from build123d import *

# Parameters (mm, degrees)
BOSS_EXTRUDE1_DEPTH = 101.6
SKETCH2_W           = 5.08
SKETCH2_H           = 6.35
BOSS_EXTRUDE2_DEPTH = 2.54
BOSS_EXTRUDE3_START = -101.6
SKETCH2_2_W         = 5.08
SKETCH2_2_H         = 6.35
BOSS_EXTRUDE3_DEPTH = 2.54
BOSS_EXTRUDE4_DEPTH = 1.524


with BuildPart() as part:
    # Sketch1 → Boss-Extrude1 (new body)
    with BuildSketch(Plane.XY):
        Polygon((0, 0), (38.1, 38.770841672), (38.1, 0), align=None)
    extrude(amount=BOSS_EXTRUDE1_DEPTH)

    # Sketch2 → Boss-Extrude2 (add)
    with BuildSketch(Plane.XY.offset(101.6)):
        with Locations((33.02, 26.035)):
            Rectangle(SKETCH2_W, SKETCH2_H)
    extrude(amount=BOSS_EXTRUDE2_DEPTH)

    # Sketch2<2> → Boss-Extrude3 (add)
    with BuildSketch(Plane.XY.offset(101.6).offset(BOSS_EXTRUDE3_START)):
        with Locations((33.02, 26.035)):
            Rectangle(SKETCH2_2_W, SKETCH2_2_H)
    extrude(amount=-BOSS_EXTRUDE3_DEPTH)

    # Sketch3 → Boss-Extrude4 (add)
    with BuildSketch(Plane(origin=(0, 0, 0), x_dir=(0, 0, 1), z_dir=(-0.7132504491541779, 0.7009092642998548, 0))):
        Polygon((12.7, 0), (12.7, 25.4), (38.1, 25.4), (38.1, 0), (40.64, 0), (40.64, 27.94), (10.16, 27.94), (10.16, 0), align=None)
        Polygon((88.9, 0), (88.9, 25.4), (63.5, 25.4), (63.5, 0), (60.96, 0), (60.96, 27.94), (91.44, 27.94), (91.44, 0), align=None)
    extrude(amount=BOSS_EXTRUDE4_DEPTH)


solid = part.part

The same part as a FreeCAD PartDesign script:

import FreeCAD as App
import Part
import Sketcher
Q = App.Units.Quantity


def add_polygon(sketch, points):
    """Adds a closed chain of lines whose ends are joined by coincident constraints."""
    first, n = sketch.GeometryCount, len(points)
    for a, b in zip(points, points[1:] + points[:1]):
        sketch.addGeometry(Part.LineSegment(App.Vector(*a, 0), App.Vector(*b, 0)), False)
    for i in range(n):
        sketch.addConstraint(Sketcher.Constraint("Coincident", first + i, 2, first + (i + 1) % n, 1))

doc = App.newDocument("Part")
body = doc.addObject("PartDesign::Body", "Body")

sketch1 = doc.addObject("Sketcher::SketchObject", "Sketch")
body.addObject(sketch1)
sketch1.AttachmentSupport = (doc.XY_Plane, [""])
sketch1.MapMode = "FlatFace"
add_polygon(sketch1, [(38, 39), (0, 0), (38, 0)])
sketch1.addConstraint(Sketcher.Constraint("Horizontal", 1))
sketch1.addConstraint(Sketcher.Constraint("Vertical", 2))
sketch1.addConstraint(Sketcher.Constraint("Coincident", 0, 2, -1, 1))
sketch1.addConstraint(Sketcher.Constraint("DistanceX", 1, 1, 1, 2, Q("1.5 in")))
sketch1.addConstraint(Sketcher.Constraint("Angle", 0, Q("-134.5 deg")))
pad1 = doc.addObject("PartDesign::Pad", "Pad")
body.addObject(pad1)
pad1.Profile = sketch1
pad1.Length = Q("4 in")

sketch2 = doc.addObject("Sketcher::SketchObject", "Sketch001")
body.addObject(sketch2)
sketch2.AttachmentSupport = (doc.XY_Plane, [""])
sketch2.MapMode = "FlatFace"
sketch2.AttachmentOffset = App.Placement(App.Vector(0, 0, 4 * 25.4), App.Rotation())
add_polygon(sketch2, [(30, 29), (30, 23), (36, 23), (36, 29)])
sketch2.addConstraint(Sketcher.Constraint("Vertical", 0))
sketch2.addConstraint(Sketcher.Constraint("Horizontal", 1))
sketch2.addConstraint(Sketcher.Constraint("Vertical", 2))
sketch2.addConstraint(Sketcher.Constraint("Horizontal", 3))
sketch2.addConstraint(Sketcher.Constraint("DistanceX", 1, 1, 1, 2, Q("0.2 in")))
sketch2.addConstraint(Sketcher.Constraint("DistanceY", 0, 2, 0, 1, Q("0.25 in")))
sketch2.addConstraint(Sketcher.Constraint("DistanceX", -1, 1, 0, 2, Q("1.2 in")))
sketch2.addConstraint(Sketcher.Constraint("DistanceY", -1, 1, 0, 2, Q("0.9 in")))
pad2 = doc.addObject("PartDesign::Pad", "Pad001")
body.addObject(pad2)
pad2.Profile = sketch2
pad2.Length = Q("0.1 in")

sketch3 = doc.addObject("Sketcher::SketchObject", "Sketch002")
body.addObject(sketch3)
sketch3.AttachmentSupport = (doc.XY_Plane, [""])
sketch3.MapMode = "FlatFace"
add_polygon(sketch3, [(30, 29), (30, 23), (36, 23), (36, 29)])
sketch3.addConstraint(Sketcher.Constraint("Vertical", 0))
sketch3.addConstraint(Sketcher.Constraint("Horizontal", 1))
sketch3.addConstraint(Sketcher.Constraint("Vertical", 2))
sketch3.addConstraint(Sketcher.Constraint("Horizontal", 3))
sketch3.addConstraint(Sketcher.Constraint("DistanceX", 1, 1, 1, 2, Q("0.2 in")))
sketch3.addConstraint(Sketcher.Constraint("DistanceY", 0, 2, 0, 1, Q("0.25 in")))
sketch3.addConstraint(Sketcher.Constraint("DistanceX", -1, 1, 0, 2, Q("1.2 in")))
sketch3.addConstraint(Sketcher.Constraint("DistanceY", -1, 1, 0, 2, Q("0.9 in")))
pad3 = doc.addObject("PartDesign::Pad", "Pad002")
body.addObject(pad3)
pad3.Profile = sketch3
pad3.Length = Q("0.1 in")
pad3.Reversed = True

sketch4 = doc.addObject("Sketcher::SketchObject", "Sketch003")
body.addObject(sketch4)
sketch4.Placement = App.Placement(App.Vector(0, 0, 0), App.Rotation(App.Vector(0, 0, 1), App.Vector(0.700909264, 0.713250449, 0), App.Vector(-0.713250449, 0.700909264, 0), "ZXY"))
add_polygon(sketch4, [(12.7, 0), (12.7, 25.4), (38.1, 25.4), (38.1, 0), (40.6, 0), (40.6, 27.9), (10.2, 27.9), (10.2, 0)])
add_polygon(sketch4, [(88.9, 25.4), (88.9, 0), (91.4, 0), (91.4, 27.9), (61, 27.9), (61, 0), (63.5, 0), (63.5, 25.4)])
sketch4.addConstraint(Sketcher.Constraint("Vertical", 0))
sketch4.addConstraint(Sketcher.Constraint("Horizontal", 1))
sketch4.addConstraint(Sketcher.Constraint("Vertical", 2))
sketch4.addConstraint(Sketcher.Constraint("Horizontal", 3))
sketch4.addConstraint(Sketcher.Constraint("Vertical", 4))
sketch4.addConstraint(Sketcher.Constraint("Horizontal", 5))
sketch4.addConstraint(Sketcher.Constraint("Vertical", 6))
sketch4.addConstraint(Sketcher.Constraint("Horizontal", 7))
sketch4.addConstraint(Sketcher.Constraint("Vertical", 8))
sketch4.addConstraint(Sketcher.Constraint("Horizontal", 9))
sketch4.addConstraint(Sketcher.Constraint("Vertical", 10))
sketch4.addConstraint(Sketcher.Constraint("Horizontal", 11))
sketch4.addConstraint(Sketcher.Constraint("Vertical", 12))
sketch4.addConstraint(Sketcher.Constraint("Horizontal", 13))
sketch4.addConstraint(Sketcher.Constraint("Vertical", 14))
sketch4.addConstraint(Sketcher.Constraint("Horizontal", 15))
sketch4.addConstraint(Sketcher.Constraint("PointOnObject", 2, 2, -1))
sketch4.addConstraint(Sketcher.Constraint("PointOnObject", 6, 2, -1))
sketch4.addConstraint(Sketcher.Constraint("PointOnObject", 8, 2, -1))
sketch4.addConstraint(Sketcher.Constraint("PointOnObject", 12, 2, -1))
sketch4.addConstraint(Sketcher.Constraint("Horizontal", 5, 2, 10, 2))
sketch4.addConstraint(Sketcher.Constraint("Horizontal", 1, 2, 14, 2))
sketch4.addConstraint(Sketcher.Constraint("Equal", 3, 7))
sketch4.addConstraint(Sketcher.Constraint("Equal", 7, 9))
sketch4.addConstraint(Sketcher.Constraint("Equal", 5, 11))
sketch4.addConstraint(Sketcher.Constraint("Equal", 9, 13))
sketch4.addConstraint(Sketcher.Constraint("Equal", 15, 0))
sketch4.addConstraint(Sketcher.Constraint("DistanceX", 1, 1, 1, 2, Q("1 in")))
sketch4.addConstraint(Sketcher.Constraint("DistanceX", 3, 1, 3, 2, Q("0.1 in")))
sketch4.addConstraint(Sketcher.Constraint("DistanceY", 4, 1, 4, 2, Q("1.1 in")))
sketch4.addConstraint(Sketcher.Constraint("DistanceX", 2, 2, 8, 2, Q("2 in")))
sketch4.addConstraint(Sketcher.Constraint("DistanceX", -1, 1, 0, 2, Q("0.5 in")))
pad4 = doc.addObject("PartDesign::Pad", "Pad003")
body.addObject(pad4)
pad4.Profile = sketch4
pad4.Length = Q("0.06 in")

doc.recompute()
